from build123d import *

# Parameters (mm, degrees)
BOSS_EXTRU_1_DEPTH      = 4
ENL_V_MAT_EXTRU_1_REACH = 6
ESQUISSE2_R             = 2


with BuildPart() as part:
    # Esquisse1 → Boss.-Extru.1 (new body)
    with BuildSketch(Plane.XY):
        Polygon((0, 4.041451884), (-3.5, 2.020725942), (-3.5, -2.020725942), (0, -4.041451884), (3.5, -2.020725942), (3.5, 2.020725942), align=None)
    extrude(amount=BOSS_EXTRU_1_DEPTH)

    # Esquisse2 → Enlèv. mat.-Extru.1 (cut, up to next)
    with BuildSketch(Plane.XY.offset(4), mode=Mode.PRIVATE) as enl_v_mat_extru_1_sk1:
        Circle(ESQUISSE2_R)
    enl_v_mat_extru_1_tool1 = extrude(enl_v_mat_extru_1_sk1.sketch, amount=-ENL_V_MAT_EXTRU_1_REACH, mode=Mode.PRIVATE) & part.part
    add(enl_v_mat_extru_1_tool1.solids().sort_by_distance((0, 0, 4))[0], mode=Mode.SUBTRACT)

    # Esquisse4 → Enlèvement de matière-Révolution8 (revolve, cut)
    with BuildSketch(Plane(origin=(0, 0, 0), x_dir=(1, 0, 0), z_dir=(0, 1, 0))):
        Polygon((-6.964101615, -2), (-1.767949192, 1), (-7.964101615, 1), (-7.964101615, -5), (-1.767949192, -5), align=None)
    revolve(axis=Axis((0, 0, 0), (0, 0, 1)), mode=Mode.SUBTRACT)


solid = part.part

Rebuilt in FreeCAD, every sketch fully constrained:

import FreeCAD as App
import Part
import Sketcher

V = App.Vector
Q = App.Units.Quantity


def add_polygon(sketch, points):
    """Adds a closed chain of lines whose ends are joined by coincident constraints."""
    first, n = sketch.GeometryCount, len(points)
    for a, b in zip(points, points[1:] + points[:1]):
        sketch.addGeometry(Part.LineSegment(App.Vector(*a, 0), App.Vector(*b, 0)), False)
    for i in range(n):
        sketch.addConstraint(Sketcher.Constraint("Coincident", first + i, 2, first + (i + 1) % n, 1))

doc = App.newDocument("Part")
body = doc.addObject("PartDesign::Body", "Body")

# Sketch on XY plane
sketch1 = body.newObject("Sketcher::SketchObject", "Sketch")
sketch1.AttachmentSupport = (doc.getObject("XY_Plane"), [""])
sketch1.MapMode = "FlatFace"
add_polygon(sketch1, [(0, 4.041452), (-3.5, 2.020726), (-3.5, -2.020726), (0, -4.041452), (3.5, -2.020726), (3.5, 2.020726)])  # lines 0-5
sketch1.addConstraint([
    Sketcher.Constraint("Vertical", 1),
    Sketcher.Constraint("Vertical", 4),
    Sketcher.Constraint("Symmetric", 0, 2, 3, 2, -1, 1),
    Sketcher.Constraint("Symmetric", 2, 2, 5, 2, -1, 1),
    Sketcher.Constraint("PointOnObject", 2, 2, -2),
    Sketcher.Constraint("Parallel", 2, 5),
    Sketcher.Constraint("Horizontal", 1, 2, 3, 2),
    Sketcher.Constraint("Angle", 0, Q("-150 deg")),
    Sketcher.Constraint("DistanceX", 1, 2, 3, 2, Q("7 mm")),
    Sketcher.Constraint("DistanceY", 1, 2, 1, 1, Q("4.041452 mm")),
])
pad1 = body.newObject("PartDesign::Pad", "Pad")
pad1.Profile = sketch1
pad1.Length = 4

# Sketch on XY plane
sketch2 = body.newObject("Sketcher::SketchObject", "Sketch001")
sketch2.AttachmentSupport = (doc.getObject("XY_Plane"), [""])
sketch2.MapMode = "FlatFace"
sketch2.AttachmentOffset = App.Placement(V(0, 0, 4), App.Rotation())
sketch2.addGeometry(Part.Circle(V(0, 0, 0), V(0, 0, 1), 2), False)
sketch2.addConstraint([
    Sketcher.Constraint("Coincident", 0, 3, -1, 1),
    Sketcher.Constraint("Diameter", 0, Q("4 mm")),
])
pocket1 = body.newObject("PartDesign::Pocket", "Pocket")
pocket1.Profile = sketch2
pocket1.Type = "UpToFirst"

# Sketch on XZ plane
sketch3 = body.newObject("Sketcher::SketchObject", "Sketch002")
sketch3.AttachmentSupport = (doc.getObject("XZ_Plane"), [""])
sketch3.MapMode = "FlatFace"
add_polygon(sketch3, [(-6.964102, 2), (-1.767949, -1), (-7.964102, -1), (-7.964102, 5), (-1.767949, 5)])  # lines 0-4
sketch3.addConstraint([
    Sketcher.Constraint("Horizontal", 1),
    Sketcher.Constraint("Vertical", 2),
    Sketcher.Constraint("Horizontal", 3),
    Sketcher.Constraint("Vertical", 0, 2, 3, 2),
    Sketcher.Constraint("Equal", 0, 4),
    Sketcher.Constraint("DistanceY", 2, 1, 2, 2, Q("6 mm")),
    Sketcher.Constraint("Angle", 0, Q("-30 deg")),
    Sketcher.Constraint("DistanceY", 0, 2, -1, 1, Q("1 mm")),
    Sketcher.Constraint("DistanceX", 1, 2, 4, 2, Q("1 mm")),
    Sketcher.Constraint("DistanceX", 1, 2, -1, 1, Q("7.964102 mm")),
])
groove = body.newObject("PartDesign::Groove", "Groove")
groove.Profile = sketch3
groove.ReferenceAxis = (sketch3, ["V_Axis"])
groove.Angle = 360

doc.recompute()
